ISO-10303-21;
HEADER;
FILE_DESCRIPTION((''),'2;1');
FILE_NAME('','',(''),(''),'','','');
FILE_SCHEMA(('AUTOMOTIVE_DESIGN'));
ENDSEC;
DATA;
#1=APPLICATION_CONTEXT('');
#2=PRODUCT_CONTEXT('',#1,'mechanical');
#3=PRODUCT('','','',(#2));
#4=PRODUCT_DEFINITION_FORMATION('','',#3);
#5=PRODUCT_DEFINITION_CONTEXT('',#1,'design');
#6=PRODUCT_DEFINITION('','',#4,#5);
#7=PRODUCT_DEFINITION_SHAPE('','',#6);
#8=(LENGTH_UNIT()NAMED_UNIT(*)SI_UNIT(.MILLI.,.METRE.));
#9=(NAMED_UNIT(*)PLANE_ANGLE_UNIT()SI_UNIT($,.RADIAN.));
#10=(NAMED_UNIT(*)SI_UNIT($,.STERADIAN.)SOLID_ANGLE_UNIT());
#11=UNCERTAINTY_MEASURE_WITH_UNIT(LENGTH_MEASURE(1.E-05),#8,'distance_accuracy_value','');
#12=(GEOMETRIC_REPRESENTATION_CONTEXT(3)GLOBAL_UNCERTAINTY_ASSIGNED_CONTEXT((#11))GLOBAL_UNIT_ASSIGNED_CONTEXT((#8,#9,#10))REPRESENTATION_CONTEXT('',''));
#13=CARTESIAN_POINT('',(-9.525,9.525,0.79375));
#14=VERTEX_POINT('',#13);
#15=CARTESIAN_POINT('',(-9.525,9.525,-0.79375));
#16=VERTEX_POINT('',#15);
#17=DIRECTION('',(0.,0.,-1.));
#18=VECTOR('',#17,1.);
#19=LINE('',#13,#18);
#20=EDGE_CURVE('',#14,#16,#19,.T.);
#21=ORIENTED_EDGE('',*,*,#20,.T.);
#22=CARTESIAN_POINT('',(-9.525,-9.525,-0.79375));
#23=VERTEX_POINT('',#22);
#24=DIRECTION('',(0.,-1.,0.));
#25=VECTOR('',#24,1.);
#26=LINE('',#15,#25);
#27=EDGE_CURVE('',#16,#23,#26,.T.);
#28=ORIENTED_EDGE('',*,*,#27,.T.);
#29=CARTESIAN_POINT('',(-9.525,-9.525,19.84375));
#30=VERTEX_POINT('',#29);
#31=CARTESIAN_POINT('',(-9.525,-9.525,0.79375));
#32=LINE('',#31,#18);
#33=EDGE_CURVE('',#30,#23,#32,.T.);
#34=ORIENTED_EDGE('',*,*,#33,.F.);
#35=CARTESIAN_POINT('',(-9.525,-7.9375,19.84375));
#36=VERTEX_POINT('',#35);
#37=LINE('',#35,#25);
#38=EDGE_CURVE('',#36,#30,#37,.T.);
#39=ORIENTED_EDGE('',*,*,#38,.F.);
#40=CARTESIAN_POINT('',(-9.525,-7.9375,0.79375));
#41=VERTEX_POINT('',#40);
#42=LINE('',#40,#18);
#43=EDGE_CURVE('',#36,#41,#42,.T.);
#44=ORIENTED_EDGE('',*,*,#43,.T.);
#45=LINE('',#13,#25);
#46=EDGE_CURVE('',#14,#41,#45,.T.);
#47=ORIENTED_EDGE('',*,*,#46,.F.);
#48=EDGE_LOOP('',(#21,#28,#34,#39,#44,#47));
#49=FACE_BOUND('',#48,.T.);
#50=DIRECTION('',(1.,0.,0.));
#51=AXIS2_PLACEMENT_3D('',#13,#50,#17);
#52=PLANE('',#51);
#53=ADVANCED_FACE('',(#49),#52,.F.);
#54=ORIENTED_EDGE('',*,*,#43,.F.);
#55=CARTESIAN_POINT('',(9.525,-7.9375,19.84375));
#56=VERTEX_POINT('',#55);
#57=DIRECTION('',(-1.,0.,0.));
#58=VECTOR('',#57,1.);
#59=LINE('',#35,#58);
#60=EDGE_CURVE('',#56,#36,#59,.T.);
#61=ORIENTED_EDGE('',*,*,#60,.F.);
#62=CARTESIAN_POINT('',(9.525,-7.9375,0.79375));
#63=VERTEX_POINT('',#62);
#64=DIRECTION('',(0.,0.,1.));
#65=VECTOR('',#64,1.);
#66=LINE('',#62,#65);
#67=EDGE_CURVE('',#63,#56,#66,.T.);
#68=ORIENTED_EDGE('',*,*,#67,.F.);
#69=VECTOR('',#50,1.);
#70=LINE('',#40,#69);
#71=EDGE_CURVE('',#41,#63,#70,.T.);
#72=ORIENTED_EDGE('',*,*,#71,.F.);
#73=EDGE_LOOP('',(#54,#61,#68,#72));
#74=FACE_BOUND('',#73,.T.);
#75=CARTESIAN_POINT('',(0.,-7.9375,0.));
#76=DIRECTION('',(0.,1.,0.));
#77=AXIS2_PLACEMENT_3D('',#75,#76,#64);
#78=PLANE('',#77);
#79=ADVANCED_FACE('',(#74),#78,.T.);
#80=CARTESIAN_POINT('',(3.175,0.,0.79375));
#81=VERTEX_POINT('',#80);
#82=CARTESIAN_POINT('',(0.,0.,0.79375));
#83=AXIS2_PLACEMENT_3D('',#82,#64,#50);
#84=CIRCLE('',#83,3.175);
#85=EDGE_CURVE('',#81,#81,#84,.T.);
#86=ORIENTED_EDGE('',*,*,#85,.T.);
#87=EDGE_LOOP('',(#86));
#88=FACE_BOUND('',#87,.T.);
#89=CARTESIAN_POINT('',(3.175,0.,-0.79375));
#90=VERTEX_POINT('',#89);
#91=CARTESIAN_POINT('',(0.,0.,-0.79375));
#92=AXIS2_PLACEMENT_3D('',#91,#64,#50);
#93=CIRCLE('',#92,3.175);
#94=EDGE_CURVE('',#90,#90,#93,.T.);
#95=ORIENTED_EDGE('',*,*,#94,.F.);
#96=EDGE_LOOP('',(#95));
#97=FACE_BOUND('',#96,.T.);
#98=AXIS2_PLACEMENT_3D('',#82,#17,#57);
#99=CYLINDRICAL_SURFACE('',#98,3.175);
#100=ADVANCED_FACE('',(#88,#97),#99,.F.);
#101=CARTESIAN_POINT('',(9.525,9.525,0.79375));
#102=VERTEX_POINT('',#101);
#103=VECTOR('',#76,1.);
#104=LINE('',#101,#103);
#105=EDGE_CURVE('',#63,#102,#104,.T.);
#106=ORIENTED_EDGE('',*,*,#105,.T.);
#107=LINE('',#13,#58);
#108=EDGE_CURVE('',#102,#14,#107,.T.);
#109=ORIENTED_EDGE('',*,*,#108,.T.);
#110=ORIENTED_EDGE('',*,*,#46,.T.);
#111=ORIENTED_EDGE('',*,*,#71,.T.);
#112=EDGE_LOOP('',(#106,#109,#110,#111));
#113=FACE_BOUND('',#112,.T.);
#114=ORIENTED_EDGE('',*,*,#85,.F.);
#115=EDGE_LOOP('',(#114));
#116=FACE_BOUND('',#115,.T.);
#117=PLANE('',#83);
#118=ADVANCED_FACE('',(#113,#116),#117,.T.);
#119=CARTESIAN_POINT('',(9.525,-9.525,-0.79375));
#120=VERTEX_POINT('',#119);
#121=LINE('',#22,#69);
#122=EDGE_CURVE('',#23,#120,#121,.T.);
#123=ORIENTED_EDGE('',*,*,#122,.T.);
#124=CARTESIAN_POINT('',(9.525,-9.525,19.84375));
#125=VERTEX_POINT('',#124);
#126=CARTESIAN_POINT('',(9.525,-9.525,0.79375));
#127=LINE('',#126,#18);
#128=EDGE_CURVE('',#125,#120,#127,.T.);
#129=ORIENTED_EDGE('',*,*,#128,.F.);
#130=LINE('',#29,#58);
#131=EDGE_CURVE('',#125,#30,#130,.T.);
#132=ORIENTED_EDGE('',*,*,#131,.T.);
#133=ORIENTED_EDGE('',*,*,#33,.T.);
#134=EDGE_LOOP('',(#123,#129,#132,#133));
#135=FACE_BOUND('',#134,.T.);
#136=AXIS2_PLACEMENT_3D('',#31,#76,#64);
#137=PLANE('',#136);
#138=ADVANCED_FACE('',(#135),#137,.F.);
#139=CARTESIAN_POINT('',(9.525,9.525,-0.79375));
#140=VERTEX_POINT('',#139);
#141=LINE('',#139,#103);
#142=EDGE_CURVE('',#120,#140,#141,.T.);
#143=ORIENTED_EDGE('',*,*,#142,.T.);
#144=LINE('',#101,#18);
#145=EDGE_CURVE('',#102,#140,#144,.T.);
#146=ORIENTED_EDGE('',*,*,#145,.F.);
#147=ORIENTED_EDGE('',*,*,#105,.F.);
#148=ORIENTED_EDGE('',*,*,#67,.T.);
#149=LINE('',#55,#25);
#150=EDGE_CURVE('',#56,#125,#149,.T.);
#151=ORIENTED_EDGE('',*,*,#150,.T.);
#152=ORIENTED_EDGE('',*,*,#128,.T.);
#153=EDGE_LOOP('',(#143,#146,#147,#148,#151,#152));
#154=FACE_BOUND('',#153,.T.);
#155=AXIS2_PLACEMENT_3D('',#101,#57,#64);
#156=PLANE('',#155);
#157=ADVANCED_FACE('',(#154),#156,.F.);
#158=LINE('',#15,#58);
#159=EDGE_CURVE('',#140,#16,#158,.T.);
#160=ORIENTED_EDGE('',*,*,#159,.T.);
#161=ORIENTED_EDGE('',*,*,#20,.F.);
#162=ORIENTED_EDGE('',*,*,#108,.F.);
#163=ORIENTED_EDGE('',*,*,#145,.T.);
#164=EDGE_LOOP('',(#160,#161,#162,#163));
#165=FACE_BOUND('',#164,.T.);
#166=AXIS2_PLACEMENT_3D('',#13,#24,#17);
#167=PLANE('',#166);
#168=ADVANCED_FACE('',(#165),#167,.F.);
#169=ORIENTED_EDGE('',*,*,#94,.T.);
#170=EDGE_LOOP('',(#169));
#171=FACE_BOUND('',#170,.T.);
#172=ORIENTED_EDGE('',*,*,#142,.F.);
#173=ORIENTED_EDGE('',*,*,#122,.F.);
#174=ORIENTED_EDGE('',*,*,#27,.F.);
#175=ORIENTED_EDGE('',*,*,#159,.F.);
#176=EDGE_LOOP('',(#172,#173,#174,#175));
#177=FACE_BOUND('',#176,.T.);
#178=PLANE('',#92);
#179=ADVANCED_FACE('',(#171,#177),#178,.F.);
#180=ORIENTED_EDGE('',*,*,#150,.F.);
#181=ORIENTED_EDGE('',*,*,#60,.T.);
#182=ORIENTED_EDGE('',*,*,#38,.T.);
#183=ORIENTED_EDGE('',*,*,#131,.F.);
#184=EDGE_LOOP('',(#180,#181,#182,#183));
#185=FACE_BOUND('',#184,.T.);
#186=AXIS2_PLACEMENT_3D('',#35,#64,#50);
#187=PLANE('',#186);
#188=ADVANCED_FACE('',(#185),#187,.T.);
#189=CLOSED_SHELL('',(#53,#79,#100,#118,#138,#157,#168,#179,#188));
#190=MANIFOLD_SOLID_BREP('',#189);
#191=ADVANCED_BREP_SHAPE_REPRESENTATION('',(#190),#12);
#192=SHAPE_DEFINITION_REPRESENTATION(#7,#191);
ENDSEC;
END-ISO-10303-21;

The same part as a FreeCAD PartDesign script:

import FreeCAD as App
import Part
import Sketcher

V = App.Vector
Q = App.Units.Quantity

doc = App.newDocument("Part")
body = doc.addObject("PartDesign::Body", "Body")

# Sketch on XY plane
sketch1 = body.newObject("Sketcher::SketchObject", "Sketch")
sketch1.AttachmentSupport = (doc.getObject("XY_Plane"), [""])
sketch1.MapMode = "FlatFace"
sketch1.addGeometry([
    Part.LineSegment(V(-9.5, 9.5, 0), V(-9.5, -9.5, 0)),  # 0
    Part.LineSegment(V(-9.5, -9.5, 0), V(9.5, -9.5, 0)),  # 1
    Part.LineSegment(V(9.5, -9.5, 0), V(9.5, 9.5, 0)),  # 2
    Part.LineSegment(V(9.5, 9.5, 0), V(-9.5, 9.5, 0)),  # 3
    Part.Circle(V(0, 0, 0), V(0, 0, 1), 3.2),  # 4
], False)
sketch1.addConstraint([
    Sketcher.Constraint("Coincident", 0, 2, 1, 1),
    Sketcher.Constraint("Coincident", 1, 2, 2, 1),
    Sketcher.Constraint("Coincident", 2, 2, 3, 1),
    Sketcher.Constraint("Coincident", 3, 2, 0, 1),
    Sketcher.Constraint("Vertical", 0),
    Sketcher.Constraint("Horizontal", 1),
    Sketcher.Constraint("Vertical", 2),
    Sketcher.Constraint("Horizontal", 3),
    Sketcher.Constraint("Coincident", 4, 3, -1, 1),
    Sketcher.Constraint("Symmetric", 0, 2, 2, 2, -1, 1),
    Sketcher.Constraint("Equal", 3, 0),
    Sketcher.Constraint("Diameter", 4, Q("0.25 in")),
    Sketcher.Constraint("DistanceX", 1, 1, 1, 2, Q("0.75 in")),
])
pad1 = body.newObject("PartDesign::Pad", "Pad")
pad1.Profile = sketch1
pad1.Length = Q("0.0625 in")
pad1.Midplane = True

# Sketch on XZ plane
sketch2 = body.newObject("Sketcher::SketchObject", "Sketch001")
sketch2.AttachmentSupport = (doc.getObject("XZ_Plane"), [""])
sketch2.MapMode = "FlatFace"
sketch2.AttachmentOffset = App.Placement(V(0, 0, 0.375 * 25.4), App.Rotation())
sketch2.addGeometry([
    Part.LineSegment(V(-10, 20, 0), V(-10, 1, 0)),
    Part.LineSegment(V(-10, 1, 0), V(10, 1, 0)),
    Part.LineSegment(V(10, 1, 0), V(10, 20, 0)),
    Part.LineSegment(V(10, 20, 0), V(-10, 20, 0)),
], False)
sketch2.addConstraint([
    Sketcher.Constraint("Coincident", 0, 2, 1, 1),
    Sketcher.Constraint("Coincident", 1, 2, 2, 1),
    Sketcher.Constraint("Coincident", 2, 2, 3, 1),
    Sketcher.Constraint("Coincident", 3, 2, 0, 1),
    Sketcher.Constraint("Vertical", 0),
    Sketcher.Constraint("Horizontal", 1),
    Sketcher.Constraint("Vertical", 2),
    Sketcher.Constraint("Horizontal", 3),
    Sketcher.Constraint("Equal", 3, 0),
    Sketcher.Constraint("DistanceX", 1, 1, 1, 2, Q("0.75 in")),
    Sketcher.Constraint("DistanceX", 0, 2, -1, 1, Q("0.375 in")),
    Sketcher.Constraint("DistanceY", -1, 1, 0, 2, Q("0.03125 in")),
])
pad2 = body.newObject("PartDesign::Pad", "Pad001")
pad2.Profile = sketch2
pad2.Length = Q("0.0625 in")
pad2.Reversed = True

doc.recompute()
